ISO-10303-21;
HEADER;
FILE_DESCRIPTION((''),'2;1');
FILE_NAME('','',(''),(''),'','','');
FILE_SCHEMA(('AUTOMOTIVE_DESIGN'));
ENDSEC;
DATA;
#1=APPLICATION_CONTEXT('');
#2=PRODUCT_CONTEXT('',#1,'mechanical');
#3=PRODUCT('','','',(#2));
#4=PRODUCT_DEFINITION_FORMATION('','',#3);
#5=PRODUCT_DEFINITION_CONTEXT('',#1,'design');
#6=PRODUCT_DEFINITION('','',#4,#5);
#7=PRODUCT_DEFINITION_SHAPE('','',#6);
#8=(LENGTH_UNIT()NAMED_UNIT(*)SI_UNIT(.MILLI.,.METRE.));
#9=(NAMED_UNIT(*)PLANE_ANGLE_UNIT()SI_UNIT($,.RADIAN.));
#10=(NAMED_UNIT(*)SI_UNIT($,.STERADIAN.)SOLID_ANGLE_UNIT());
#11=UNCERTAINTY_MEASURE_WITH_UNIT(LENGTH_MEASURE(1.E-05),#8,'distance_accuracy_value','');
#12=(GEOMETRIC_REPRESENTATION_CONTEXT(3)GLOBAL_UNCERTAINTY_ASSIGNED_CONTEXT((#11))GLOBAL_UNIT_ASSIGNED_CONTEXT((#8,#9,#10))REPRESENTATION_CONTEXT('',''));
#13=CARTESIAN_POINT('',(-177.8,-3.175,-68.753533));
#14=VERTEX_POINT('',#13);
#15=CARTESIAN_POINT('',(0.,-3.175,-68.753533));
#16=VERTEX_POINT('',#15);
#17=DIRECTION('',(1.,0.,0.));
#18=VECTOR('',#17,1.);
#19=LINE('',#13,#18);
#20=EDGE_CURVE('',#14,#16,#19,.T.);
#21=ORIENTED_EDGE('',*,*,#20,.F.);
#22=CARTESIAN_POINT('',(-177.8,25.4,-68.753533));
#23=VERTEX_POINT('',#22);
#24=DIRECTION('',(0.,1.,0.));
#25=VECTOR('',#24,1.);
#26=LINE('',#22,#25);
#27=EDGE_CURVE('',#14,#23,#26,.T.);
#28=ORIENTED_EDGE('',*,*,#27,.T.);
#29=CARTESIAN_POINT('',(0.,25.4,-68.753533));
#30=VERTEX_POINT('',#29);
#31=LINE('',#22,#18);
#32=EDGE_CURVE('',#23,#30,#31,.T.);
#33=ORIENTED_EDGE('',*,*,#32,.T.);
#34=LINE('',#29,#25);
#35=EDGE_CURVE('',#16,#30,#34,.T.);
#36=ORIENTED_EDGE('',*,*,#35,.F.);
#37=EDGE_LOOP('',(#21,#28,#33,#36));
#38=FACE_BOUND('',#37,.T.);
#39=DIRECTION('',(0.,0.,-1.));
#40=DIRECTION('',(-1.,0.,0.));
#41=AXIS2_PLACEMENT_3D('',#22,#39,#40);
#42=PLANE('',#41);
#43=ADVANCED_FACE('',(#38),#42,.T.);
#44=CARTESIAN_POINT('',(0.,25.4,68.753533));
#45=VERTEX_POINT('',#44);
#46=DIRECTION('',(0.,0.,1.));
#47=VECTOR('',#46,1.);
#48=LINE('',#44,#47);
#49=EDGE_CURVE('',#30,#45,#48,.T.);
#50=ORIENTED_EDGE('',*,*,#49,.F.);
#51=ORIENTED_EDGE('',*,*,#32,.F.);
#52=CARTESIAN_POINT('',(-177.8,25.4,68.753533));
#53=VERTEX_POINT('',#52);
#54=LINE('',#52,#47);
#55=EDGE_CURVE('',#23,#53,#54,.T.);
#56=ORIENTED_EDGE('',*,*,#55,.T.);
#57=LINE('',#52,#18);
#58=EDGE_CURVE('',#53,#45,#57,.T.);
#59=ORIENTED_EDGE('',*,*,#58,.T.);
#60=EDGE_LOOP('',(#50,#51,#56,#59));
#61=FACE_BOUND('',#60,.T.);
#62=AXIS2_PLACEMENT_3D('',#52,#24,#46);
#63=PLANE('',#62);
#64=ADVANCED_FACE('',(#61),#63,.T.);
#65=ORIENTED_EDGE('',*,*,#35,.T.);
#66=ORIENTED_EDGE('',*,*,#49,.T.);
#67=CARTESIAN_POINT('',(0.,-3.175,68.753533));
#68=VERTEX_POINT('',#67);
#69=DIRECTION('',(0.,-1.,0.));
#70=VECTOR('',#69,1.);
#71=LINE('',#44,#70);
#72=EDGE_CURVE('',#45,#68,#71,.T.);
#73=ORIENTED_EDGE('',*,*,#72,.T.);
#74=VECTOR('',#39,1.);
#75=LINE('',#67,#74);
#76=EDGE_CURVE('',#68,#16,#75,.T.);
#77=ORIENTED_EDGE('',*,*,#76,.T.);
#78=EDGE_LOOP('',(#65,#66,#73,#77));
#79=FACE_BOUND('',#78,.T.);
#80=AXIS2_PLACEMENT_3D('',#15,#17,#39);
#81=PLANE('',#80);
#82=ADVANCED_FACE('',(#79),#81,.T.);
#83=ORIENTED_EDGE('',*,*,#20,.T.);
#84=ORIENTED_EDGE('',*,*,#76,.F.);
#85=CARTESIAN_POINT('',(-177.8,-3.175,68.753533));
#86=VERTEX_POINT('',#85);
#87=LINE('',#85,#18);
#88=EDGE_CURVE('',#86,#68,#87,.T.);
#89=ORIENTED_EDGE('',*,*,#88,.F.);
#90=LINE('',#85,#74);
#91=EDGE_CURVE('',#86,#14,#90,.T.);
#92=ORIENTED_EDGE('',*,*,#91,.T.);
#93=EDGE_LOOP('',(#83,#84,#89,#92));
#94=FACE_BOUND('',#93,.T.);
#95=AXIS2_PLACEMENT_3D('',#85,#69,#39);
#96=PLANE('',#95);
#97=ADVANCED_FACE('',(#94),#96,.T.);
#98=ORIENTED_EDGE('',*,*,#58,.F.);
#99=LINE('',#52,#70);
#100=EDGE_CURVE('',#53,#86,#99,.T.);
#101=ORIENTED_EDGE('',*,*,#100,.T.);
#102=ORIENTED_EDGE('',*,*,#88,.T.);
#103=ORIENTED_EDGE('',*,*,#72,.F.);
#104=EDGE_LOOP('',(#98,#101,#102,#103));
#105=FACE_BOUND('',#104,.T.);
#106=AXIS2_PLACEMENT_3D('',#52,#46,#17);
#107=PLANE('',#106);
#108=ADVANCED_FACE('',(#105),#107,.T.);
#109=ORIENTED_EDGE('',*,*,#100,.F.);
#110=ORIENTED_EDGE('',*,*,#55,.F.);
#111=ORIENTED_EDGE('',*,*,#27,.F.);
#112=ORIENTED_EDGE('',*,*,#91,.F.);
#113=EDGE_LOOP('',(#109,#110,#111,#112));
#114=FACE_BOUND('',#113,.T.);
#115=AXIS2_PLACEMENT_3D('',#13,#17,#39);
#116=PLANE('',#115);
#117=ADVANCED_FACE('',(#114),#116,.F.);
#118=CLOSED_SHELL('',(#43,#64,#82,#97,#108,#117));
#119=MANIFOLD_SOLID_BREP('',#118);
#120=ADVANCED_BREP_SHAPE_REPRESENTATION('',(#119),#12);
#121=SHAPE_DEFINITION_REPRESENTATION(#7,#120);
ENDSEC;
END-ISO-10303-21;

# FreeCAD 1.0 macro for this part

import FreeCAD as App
import Part
import Sketcher

V = App.Vector
Q = App.Units.Quantity


def add_polygon(sketch, points):
    """Adds a closed chain of lines whose ends are joined by coincident constraints."""
    first, n = sketch.GeometryCount, len(points)
    for a, b in zip(points, points[1:] + points[:1]):
        sketch.addGeometry(Part.LineSegment(App.Vector(*a, 0), App.Vector(*b, 0)), False)
    for i in range(n):
        sketch.addConstraint(Sketcher.Constraint("Coincident", first + i, 2, first + (i + 1) % n, 1))

doc = App.newDocument("Part")
body = doc.addObject("PartDesign::Body", "Body")

# Sketch on YZ plane
sketch1 = body.newObject("Sketcher::SketchObject", "Sketch")
sketch1.AttachmentSupport = (doc.getObject("YZ_Plane"), [""])
sketch1.MapMode = "FlatFace"
add_polygon(sketch1, [(25, 69), (-3, 69), (-3, -69), (25, -69)])  # lines 0-3
sketch1.addConstraint(Sketcher.Constraint("Horizontal", 0))
sketch1.addConstraint(Sketcher.Constraint("Vertical", 1))
sketch1.addConstraint(Sketcher.Constraint("Horizontal", 2))
sketch1.addConstraint(Sketcher.Constraint("Vertical", 3))
sketch1.addConstraint(Sketcher.Constraint("DistanceX", -1, 1, 2, 2, Q("1 in")))
sketch1.addConstraint(Sketcher.Constraint("DistanceX", 0, 2, 0, 1, Q("1.125 in")))
sketch1.addConstraint(Sketcher.Constraint("DistanceY", 1, 2, 1, 1, Q("137.507066 mm")))
sketch1.addConstraint(Sketcher.Constraint("DistanceY", -1, 1, 0, 2, Q("68.753533 mm")))
pad1 = body.newObject("PartDesign::Pad", "Pad")
pad1.Profile = sketch1
pad1.Length = Q("7 in")
pad1.Reversed = True

doc.recompute()
